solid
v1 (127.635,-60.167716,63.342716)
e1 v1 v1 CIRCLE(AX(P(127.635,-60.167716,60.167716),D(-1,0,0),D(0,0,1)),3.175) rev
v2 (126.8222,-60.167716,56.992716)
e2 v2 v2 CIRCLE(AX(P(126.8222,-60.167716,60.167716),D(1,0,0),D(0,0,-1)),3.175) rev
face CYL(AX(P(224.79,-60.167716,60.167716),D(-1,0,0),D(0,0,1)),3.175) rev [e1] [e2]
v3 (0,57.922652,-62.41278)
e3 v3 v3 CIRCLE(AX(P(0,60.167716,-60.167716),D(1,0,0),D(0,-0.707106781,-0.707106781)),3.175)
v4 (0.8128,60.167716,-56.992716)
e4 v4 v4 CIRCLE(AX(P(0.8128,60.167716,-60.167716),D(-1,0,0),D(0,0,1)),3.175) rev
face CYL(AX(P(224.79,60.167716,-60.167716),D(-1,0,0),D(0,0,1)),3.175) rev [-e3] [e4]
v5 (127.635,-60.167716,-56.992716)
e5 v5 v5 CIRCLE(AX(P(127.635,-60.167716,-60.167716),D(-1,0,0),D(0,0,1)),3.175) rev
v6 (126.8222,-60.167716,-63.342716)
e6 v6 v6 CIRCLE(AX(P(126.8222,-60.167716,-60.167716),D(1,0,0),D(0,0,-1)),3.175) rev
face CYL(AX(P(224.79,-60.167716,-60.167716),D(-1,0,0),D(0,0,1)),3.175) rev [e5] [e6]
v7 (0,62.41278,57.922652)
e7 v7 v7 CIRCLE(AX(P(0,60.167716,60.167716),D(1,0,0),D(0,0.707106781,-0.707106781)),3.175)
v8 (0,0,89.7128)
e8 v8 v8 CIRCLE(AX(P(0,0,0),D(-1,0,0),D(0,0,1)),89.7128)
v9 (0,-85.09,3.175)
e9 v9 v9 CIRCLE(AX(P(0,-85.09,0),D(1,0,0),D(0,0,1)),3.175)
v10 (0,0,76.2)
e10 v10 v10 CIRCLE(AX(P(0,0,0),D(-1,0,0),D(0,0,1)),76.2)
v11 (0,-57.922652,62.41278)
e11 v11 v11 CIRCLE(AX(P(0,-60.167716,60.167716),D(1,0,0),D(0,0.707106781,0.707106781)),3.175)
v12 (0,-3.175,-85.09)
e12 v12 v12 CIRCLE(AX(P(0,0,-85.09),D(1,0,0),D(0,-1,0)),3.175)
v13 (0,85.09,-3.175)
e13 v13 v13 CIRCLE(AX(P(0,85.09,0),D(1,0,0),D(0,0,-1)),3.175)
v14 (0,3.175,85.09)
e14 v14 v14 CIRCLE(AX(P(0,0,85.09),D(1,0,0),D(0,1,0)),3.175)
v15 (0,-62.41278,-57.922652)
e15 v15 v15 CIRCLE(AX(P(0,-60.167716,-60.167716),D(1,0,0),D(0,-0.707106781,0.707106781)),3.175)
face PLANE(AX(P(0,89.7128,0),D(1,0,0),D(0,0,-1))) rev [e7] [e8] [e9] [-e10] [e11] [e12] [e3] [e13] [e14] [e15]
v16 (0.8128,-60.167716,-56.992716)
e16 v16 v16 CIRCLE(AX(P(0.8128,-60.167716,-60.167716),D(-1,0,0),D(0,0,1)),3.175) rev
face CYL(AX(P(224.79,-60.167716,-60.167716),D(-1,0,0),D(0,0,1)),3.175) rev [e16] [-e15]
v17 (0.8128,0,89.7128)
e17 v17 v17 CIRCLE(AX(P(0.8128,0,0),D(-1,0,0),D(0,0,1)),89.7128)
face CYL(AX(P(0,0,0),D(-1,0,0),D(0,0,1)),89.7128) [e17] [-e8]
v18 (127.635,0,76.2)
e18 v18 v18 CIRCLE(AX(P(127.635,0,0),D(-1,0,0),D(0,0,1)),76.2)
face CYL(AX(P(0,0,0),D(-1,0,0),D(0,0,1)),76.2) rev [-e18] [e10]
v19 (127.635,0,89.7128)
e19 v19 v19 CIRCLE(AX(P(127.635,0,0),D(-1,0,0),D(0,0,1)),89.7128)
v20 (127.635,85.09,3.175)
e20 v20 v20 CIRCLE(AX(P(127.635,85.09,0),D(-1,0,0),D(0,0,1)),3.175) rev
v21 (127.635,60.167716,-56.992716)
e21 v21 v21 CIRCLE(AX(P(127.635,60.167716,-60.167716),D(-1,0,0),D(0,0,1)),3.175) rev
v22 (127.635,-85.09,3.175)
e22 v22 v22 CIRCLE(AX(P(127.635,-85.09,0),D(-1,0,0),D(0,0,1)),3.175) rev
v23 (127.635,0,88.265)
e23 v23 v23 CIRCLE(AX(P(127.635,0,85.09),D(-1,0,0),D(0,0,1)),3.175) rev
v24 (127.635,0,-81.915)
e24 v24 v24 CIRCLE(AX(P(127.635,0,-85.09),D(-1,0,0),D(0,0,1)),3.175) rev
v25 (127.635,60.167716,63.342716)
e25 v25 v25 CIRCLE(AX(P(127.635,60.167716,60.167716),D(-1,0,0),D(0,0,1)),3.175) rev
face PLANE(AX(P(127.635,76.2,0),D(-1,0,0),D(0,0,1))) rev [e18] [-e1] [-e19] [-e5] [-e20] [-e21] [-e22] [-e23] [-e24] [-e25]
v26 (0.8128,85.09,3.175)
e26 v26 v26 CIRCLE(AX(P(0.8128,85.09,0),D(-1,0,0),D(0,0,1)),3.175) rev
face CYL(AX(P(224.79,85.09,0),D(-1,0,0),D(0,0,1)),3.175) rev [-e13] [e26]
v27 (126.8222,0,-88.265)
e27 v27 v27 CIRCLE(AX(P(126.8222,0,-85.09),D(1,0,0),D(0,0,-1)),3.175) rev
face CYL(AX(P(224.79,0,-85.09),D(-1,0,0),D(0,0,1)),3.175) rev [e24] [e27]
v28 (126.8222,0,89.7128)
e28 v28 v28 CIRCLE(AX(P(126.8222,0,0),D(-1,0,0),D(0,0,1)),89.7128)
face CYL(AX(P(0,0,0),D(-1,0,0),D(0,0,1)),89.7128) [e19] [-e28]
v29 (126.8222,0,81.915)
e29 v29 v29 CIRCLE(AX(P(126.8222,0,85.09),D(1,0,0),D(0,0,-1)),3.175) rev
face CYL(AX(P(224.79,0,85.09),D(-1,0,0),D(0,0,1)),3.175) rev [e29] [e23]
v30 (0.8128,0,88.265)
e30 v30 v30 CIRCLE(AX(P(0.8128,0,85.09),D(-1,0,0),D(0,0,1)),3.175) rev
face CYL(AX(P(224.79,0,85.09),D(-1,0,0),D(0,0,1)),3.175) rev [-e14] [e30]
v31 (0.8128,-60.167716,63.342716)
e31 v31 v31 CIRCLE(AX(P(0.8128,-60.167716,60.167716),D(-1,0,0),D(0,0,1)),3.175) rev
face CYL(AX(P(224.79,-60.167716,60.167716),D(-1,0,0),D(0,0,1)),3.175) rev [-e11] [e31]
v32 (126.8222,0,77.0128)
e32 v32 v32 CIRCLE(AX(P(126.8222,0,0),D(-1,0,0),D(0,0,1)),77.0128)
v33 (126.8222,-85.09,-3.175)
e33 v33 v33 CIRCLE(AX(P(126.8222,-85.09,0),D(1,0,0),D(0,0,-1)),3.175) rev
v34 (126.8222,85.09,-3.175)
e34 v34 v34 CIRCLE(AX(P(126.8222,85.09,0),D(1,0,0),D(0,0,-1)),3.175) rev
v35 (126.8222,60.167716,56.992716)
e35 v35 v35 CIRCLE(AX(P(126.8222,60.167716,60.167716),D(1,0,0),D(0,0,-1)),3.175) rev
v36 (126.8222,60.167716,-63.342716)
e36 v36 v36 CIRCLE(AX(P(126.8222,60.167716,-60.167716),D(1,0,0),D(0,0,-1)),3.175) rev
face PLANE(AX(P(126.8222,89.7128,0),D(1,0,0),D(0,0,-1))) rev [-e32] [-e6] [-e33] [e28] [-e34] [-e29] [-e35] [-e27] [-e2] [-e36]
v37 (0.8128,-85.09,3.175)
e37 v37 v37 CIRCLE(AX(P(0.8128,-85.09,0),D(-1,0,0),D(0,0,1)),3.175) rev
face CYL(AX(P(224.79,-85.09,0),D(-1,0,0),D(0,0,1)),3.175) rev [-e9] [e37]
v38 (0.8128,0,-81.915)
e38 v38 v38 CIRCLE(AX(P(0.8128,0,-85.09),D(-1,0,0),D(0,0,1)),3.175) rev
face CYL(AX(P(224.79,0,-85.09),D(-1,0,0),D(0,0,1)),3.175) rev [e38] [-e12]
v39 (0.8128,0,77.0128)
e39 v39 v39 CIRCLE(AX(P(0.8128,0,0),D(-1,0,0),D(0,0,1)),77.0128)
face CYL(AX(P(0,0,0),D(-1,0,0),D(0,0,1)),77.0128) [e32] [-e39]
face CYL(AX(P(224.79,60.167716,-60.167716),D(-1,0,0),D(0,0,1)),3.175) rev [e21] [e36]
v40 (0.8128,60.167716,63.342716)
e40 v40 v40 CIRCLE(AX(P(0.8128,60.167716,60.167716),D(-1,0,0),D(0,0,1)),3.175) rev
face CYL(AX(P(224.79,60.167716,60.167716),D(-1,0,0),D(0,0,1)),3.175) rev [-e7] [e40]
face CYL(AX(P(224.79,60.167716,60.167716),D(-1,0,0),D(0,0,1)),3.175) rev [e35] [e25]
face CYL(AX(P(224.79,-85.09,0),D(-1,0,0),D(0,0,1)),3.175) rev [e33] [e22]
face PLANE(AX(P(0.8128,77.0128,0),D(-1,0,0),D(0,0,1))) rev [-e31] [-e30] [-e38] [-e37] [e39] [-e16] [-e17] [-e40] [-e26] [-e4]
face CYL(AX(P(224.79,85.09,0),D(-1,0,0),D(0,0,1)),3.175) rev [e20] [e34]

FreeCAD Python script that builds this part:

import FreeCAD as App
import Part
import Sketcher

V = App.Vector
Q = App.Units.Quantity

doc = App.newDocument("Part")
body = doc.addObject("PartDesign::Body", "Body")

sketch1 = body.newObject("Sketcher::SketchObject", "Sketch")
sketch1.AttachmentSupport = (doc.getObject("XY_Plane"), [""])
sketch1.MapMode = "FlatFace"
sketch1.addGeometry(Part.LineSegment(V(0, 76.2, 0), V(127.6, 76.2, 0)), False)
sketch1.addGeometry(Part.LineSegment(V(127.6, 76.2, 0), V(127.6, 89.7, 0)), False)
sketch1.addGeometry(Part.LineSegment(V(127.6, 89.7, 0), V(126.8, 89.7, 0)), False)
sketch1.addGeometry(Part.LineSegment(V(126.8, 89.7, 0), V(126.8, 77, 0)), False)
sketch1.addGeometry(Part.LineSegment(V(126.8, 77, 0), V(0.8, 77, 0)), False)
sketch1.addGeometry(Part.LineSegment(V(0.8, 77, 0), V(0.8, 89.7, 0)), False)
sketch1.addGeometry(Part.LineSegment(V(0.8, 89.7, 0), V(0, 89.7, 0)), False)
sketch1.addGeometry(Part.LineSegment(V(0, 89.7, 0), V(0, 76.2, 0)), False)
sketch1.addConstraint(Sketcher.Constraint("Coincident", 0, 2, 1, 1))
sketch1.addConstraint(Sketcher.Constraint("Coincident", 1, 2, 2, 1))
sketch1.addConstraint(Sketcher.Constraint("Coincident", 2, 2, 3, 1))
sketch1.addConstraint(Sketcher.Constraint("Coincident", 3, 2, 4, 1))
sketch1.addConstraint(Sketcher.Constraint("Coincident", 4, 2, 5, 1))
sketch1.addConstraint(Sketcher.Constraint("Coincident", 5, 2, 6, 1))
sketch1.addConstraint(Sketcher.Constraint("Coincident", 6, 2, 7, 1))
sketch1.addConstraint(Sketcher.Constraint("Coincident", 7, 2, 0, 1))
sketch1.addConstraint(Sketcher.Constraint("Horizontal", 0))
sketch1.addConstraint(Sketcher.Constraint("Vertical", 1))
sketch1.addConstraint(Sketcher.Constraint("Horizontal", 2))
sketch1.addConstraint(Sketcher.Constraint("Vertical", 3))
sketch1.addConstraint(Sketcher.Constraint("Horizontal", 4))
sketch1.addConstraint(Sketcher.Constraint("Vertical", 5))
sketch1.addConstraint(Sketcher.Constraint("Horizontal", 6))
sketch1.addConstraint(Sketcher.Constraint("Vertical", 7))
sketch1.addConstraint(Sketcher.Constraint("PointOnObject", 6, 2, -2))
sketch1.addConstraint(Sketcher.Constraint("Horizontal", 2, 2, 5, 2))
sketch1.addConstraint(Sketcher.Constraint("Equal", 2, 6))
sketch1.addConstraint(Sketcher.Constraint("DistanceY", 3, 2, 3, 1, Q("0.5 in")))
sketch1.addConstraint(Sketcher.Constraint("DistanceY", -1, 1, 0, 2, Q("3 in")))
sketch1.addConstraint(Sketcher.Constraint("DistanceX", 0, 1, 0, 2, Q("5.025 in")))
sketch1.addConstraint(Sketcher.Constraint("DistanceX", 2, 2, 2, 1, Q("0.032 in")))
sketch1.addConstraint(Sketcher.Constraint("DistanceY", 1, 1, 1, 2, Q("0.532 in")))
revolution = body.newObject("PartDesign::Revolution", "Revolution")
revolution.Profile = sketch1
revolution.ReferenceAxis = (sketch1, ["H_Axis"])
revolution.Angle = 360

sketch2 = body.newObject("Sketcher::SketchObject", "Sketch001")
sketch2.AttachmentSupport = (doc.getObject("YZ_Plane"), [""])
sketch2.MapMode = "FlatFace"
sketch2.addGeometry(Part.Circle(V(85.1, 0, 0), V(0, 0, 1), 3.2), False)
sketch2.addConstraint(Sketcher.Constraint("PointOnObject", 0, 3, -1))
sketch2.addConstraint(Sketcher.Constraint("Diameter", 0, Q("0.25 in")))
sketch2.addConstraint(Sketcher.Constraint("DistanceX", -1, 1, 0, 3, Q("3.35 in")))
pocket1 = body.newObject("PartDesign::Pocket", "Pocket")
pocket1.Profile = sketch2
pocket1.Length = Q("8.85 in")
pocket1.Reversed = True
doc.recompute()

polarpattern = body.newObject("PartDesign::PolarPattern", "PolarPattern")
polarpattern.Originals = [pocket1]
polarpattern.Axis = (doc.getObject("X_Axis"), [""])
polarpattern.Angle = 360
polarpattern.Occurrences = 8
body.Tip = polarpattern

doc.recompute()
